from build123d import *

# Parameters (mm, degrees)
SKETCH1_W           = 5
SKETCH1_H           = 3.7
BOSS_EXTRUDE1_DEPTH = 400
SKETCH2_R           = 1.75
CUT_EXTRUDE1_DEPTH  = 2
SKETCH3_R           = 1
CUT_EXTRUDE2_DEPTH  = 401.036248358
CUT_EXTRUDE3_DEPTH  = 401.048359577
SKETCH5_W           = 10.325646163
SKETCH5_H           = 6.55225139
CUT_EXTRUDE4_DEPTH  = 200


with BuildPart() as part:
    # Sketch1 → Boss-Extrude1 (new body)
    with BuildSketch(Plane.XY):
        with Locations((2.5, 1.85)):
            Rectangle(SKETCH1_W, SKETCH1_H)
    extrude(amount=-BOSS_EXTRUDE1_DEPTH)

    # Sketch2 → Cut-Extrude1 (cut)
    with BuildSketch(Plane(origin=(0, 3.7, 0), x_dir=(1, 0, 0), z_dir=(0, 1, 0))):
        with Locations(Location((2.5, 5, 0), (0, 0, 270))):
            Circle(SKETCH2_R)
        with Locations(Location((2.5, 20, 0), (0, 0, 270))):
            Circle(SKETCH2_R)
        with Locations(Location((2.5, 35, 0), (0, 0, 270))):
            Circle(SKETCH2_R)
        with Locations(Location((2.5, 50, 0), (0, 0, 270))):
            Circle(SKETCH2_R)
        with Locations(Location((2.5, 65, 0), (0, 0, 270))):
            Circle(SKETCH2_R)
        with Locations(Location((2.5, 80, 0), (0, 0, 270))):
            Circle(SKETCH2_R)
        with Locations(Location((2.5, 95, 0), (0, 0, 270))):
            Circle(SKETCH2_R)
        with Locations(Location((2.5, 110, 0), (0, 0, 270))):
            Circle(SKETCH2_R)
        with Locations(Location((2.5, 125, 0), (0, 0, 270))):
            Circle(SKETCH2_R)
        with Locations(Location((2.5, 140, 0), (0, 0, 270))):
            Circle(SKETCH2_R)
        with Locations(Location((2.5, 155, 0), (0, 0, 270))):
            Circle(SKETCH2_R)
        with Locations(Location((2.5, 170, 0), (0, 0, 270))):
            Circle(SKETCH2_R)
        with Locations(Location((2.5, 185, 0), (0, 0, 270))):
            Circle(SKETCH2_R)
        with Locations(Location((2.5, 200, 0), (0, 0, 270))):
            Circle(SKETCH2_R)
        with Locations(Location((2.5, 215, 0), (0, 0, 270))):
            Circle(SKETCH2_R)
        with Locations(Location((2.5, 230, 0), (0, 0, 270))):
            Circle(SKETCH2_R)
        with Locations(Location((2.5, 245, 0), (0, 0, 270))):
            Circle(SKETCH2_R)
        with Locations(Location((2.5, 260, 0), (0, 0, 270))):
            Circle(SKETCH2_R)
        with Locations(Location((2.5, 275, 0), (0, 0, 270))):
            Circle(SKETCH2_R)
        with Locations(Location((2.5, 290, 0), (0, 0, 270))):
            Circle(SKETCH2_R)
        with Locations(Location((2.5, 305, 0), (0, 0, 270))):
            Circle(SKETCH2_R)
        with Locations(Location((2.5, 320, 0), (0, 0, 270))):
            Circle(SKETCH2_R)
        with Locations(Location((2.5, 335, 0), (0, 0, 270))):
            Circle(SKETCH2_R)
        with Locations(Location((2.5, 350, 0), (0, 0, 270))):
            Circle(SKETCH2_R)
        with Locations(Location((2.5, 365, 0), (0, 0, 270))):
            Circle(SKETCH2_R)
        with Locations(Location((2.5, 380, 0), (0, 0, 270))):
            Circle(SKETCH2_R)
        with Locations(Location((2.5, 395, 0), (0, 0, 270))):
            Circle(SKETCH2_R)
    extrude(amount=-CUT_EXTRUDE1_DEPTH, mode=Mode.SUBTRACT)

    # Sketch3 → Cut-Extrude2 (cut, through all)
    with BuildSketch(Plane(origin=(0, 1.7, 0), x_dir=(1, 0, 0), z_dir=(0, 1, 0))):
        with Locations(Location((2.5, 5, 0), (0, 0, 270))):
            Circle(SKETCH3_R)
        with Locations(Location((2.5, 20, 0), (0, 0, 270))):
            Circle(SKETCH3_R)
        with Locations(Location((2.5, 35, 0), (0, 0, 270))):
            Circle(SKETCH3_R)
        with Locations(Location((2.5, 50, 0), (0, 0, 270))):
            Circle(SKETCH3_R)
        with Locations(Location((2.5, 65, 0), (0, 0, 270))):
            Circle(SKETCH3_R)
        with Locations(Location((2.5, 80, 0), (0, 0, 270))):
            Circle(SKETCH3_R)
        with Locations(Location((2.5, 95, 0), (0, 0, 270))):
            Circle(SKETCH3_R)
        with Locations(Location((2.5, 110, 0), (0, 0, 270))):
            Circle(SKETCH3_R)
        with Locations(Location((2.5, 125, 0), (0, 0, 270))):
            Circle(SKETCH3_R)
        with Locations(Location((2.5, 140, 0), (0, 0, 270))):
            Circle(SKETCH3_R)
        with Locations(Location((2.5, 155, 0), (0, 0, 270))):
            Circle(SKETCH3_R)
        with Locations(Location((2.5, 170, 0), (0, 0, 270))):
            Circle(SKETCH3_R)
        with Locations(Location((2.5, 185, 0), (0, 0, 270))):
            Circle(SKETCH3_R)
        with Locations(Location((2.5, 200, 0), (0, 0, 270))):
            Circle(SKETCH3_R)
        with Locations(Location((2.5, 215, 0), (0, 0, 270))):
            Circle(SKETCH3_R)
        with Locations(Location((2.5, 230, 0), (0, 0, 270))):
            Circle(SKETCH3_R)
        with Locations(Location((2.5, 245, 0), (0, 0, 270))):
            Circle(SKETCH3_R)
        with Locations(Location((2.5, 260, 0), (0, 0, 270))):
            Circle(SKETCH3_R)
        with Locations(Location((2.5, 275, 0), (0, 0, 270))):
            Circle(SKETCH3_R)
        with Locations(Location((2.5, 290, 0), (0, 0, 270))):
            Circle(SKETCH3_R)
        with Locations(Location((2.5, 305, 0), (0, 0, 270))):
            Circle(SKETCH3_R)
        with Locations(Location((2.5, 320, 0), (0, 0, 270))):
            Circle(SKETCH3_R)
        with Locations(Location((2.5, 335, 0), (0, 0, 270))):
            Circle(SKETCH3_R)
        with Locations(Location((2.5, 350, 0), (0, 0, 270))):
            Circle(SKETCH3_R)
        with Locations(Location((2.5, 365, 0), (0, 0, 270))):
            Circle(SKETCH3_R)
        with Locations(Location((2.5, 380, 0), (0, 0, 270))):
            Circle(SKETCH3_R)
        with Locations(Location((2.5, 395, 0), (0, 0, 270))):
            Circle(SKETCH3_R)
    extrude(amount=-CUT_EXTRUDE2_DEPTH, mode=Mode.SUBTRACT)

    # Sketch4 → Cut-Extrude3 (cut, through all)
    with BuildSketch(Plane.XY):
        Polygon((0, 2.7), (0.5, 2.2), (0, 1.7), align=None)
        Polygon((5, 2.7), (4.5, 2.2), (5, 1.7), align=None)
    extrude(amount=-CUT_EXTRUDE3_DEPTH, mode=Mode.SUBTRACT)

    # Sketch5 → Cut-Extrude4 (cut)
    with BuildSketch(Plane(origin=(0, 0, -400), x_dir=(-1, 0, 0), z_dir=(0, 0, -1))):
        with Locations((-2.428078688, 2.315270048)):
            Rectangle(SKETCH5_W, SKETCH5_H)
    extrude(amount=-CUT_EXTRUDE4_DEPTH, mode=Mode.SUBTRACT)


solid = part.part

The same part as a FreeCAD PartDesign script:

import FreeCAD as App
import Part
import Sketcher

V = App.Vector
Q = App.Units.Quantity


def add_polygon(sketch, points):
    """Adds a closed chain of lines whose ends are joined by coincident constraints."""
    first, n = sketch.GeometryCount, len(points)
    for a, b in zip(points, points[1:] + points[:1]):
        sketch.addGeometry(Part.LineSegment(App.Vector(*a, 0), App.Vector(*b, 0)), False)
    for i in range(n):
        sketch.addConstraint(Sketcher.Constraint("Coincident", first + i, 2, first + (i + 1) % n, 1))

doc = App.newDocument("Part")
body = doc.addObject("PartDesign::Body", "Body")

sketch1 = body.newObject("Sketcher::SketchObject", "Sketch")
sketch1.AttachmentSupport = (doc.getObject("XY_Plane"), [""])
sketch1.MapMode = "FlatFace"
add_polygon(sketch1, [(0, 3.7), (0, 0), (5, 0), (5, 3.7)])
sketch1.addConstraint([
    Sketcher.Constraint("Vertical", 0),
    Sketcher.Constraint("Horizontal", 1),
    Sketcher.Constraint("Vertical", 2),
    Sketcher.Constraint("Horizontal", 3),
    Sketcher.Constraint("Coincident", 0, 2, -1, 1),
    Sketcher.Constraint("DistanceX", 1, 1, 1, 2, Q("5 mm")),
    Sketcher.Constraint("DistanceY", 0, 2, 0, 1, Q("3.7 mm")),
])
pad1 = body.newObject("PartDesign::Pad", "Pad")
pad1.Profile = sketch1
pad1.Length = 400
pad1.Reversed = True

sketch2 = body.newObject("Sketcher::SketchObject", "Sketch001")
sketch2.AttachmentSupport = (doc.getObject("XZ_Plane"), [""])
sketch2.MapMode = "FlatFace"
sketch2.AttachmentOffset = App.Placement(V(0, 0, -3.7), App.Rotation())
sketch2.addGeometry([
    Part.Circle(V(2.5, -5, 0), V(0, 0, 1), 1.8),
    Part.Circle(V(2.5, -20, 0), V(0, 0, 1), 1.8),
    Part.Circle(V(2.5, -35, 0), V(0, 0, 1), 1.8),
    Part.Circle(V(2.5, -50, 0), V(0, 0, 1), 1.8),
    Part.Circle(V(2.5, -65, 0), V(0, 0, 1), 1.8),
    Part.Circle(V(2.5, -80, 0), V(0, 0, 1), 1.8),
    Part.Circle(V(2.5, -95, 0), V(0, 0, 1), 1.8),
    Part.Circle(V(2.5, -110, 0), V(0, 0, 1), 1.8),
    Part.Circle(V(2.5, -125, 0), V(0, 0, 1), 1.8),
    Part.Circle(V(2.5, -140, 0), V(0, 0, 1), 1.8),
    Part.Circle(V(2.5, -155, 0), V(0, 0, 1), 1.8),
    Part.Circle(V(2.5, -170, 0), V(0, 0, 1), 1.8),
    Part.Circle(V(2.5, -185, 0), V(0, 0, 1), 1.8),
    Part.Circle(V(2.5, -200, 0), V(0, 0, 1), 1.8),
    Part.Circle(V(2.5, -215, 0), V(0, 0, 1), 1.8),
    Part.Circle(V(2.5, -230, 0), V(0, 0, 1), 1.8),
    Part.Circle(V(2.5, -245, 0), V(0, 0, 1), 1.8),
    Part.Circle(V(2.5, -260, 0), V(0, 0, 1), 1.8),
    Part.Circle(V(2.5, -275, 0), V(0, 0, 1), 1.8),
    Part.Circle(V(2.5, -290, 0), V(0, 0, 1), 1.8),
    Part.Circle(V(2.5, -305, 0), V(0, 0, 1), 1.8),
    Part.Circle(V(2.5, -320, 0), V(0, 0, 1), 1.8),
    Part.Circle(V(2.5, -335, 0), V(0, 0, 1), 1.8),
    Part.Circle(V(2.5, -350, 0), V(0, 0, 1), 1.8),
    Part.Circle(V(2.5, -365, 0), V(0, 0, 1), 1.8),
    Part.Circle(V(2.5, -380, 0), V(0, 0, 1), 1.8),
    Part.Circle(V(2.5, -395, 0), V(0, 0, 1), 1.8),
], False)
sketch2.addConstraint([
    Sketcher.Constraint("Equal", 0, 1),
    Sketcher.Constraint("Equal", 1, 2),
    Sketcher.Constraint("Equal", 2, 3),
    Sketcher.Constraint("Equal", 3, 4),
    Sketcher.Constraint("Equal", 4, 5),
    Sketcher.Constraint("Equal", 5, 6),
    Sketcher.Constraint("Equal", 6, 7),
    Sketcher.Constraint("Equal", 7, 8),
    Sketcher.Constraint("Equal", 8, 9),
    Sketcher.Constraint("Equal", 9, 10),
    Sketcher.Constraint("Equal", 10, 11),
    Sketcher.Constraint("Equal", 11, 12),
    Sketcher.Constraint("Equal", 12, 13),
    Sketcher.Constraint("Equal", 13, 14),
    Sketcher.Constraint("Equal", 14, 15),
    Sketcher.Constraint("Equal", 15, 16),
    Sketcher.Constraint("Equal", 16, 17),
    Sketcher.Constraint("Equal", 17, 18),
    Sketcher.Constraint("Equal", 18, 19),
    Sketcher.Constraint("Equal", 19, 20),
    Sketcher.Constraint("Equal", 20, 21),
    Sketcher.Constraint("Equal", 21, 22),
    Sketcher.Constraint("Equal", 22, 23),
    Sketcher.Constraint("Equal", 23, 24),
    Sketcher.Constraint("Equal", 24, 25),
    Sketcher.Constraint("Equal", 25, 26),
    Sketcher.Constraint("Vertical", 0, 3, 1, 3),
    Sketcher.Constraint("Vertical", 1, 3, 2, 3),
    Sketcher.Constraint("Vertical", 2, 3, 3, 3),
    Sketcher.Constraint("Vertical", 3, 3, 4, 3),
    Sketcher.Constraint("Vertical", 4, 3, 5, 3),
    Sketcher.Constraint("Vertical", 5, 3, 6, 3),
    Sketcher.Constraint("Vertical", 6, 3, 7, 3),
    Sketcher.Constraint("Vertical", 7, 3, 8, 3),
    Sketcher.Constraint("Vertical", 8, 3, 9, 3),
    Sketcher.Constraint("Vertical", 9, 3, 10, 3),
    Sketcher.Constraint("Vertical", 10, 3, 11, 3),
    Sketcher.Constraint("Vertical", 11, 3, 12, 3),
    Sketcher.Constraint("Vertical", 12, 3, 13, 3),
    Sketcher.Constraint("Vertical", 13, 3, 14, 3),
    Sketcher.Constraint("Vertical", 14, 3, 15, 3),
    Sketcher.Constraint("Vertical", 15, 3, 16, 3),
    Sketcher.Constraint("Vertical", 16, 3, 17, 3),
    Sketcher.Constraint("Vertical", 17, 3, 18, 3),
    Sketcher.Constraint("Vertical", 18, 3, 19, 3),
    Sketcher.Constraint("Vertical", 19, 3, 20, 3),
    Sketcher.Constraint("Vertical", 20, 3, 21, 3),
    Sketcher.Constraint("Vertical", 21, 3, 22, 3),
    Sketcher.Constraint("Vertical", 22, 3, 23, 3),
    Sketcher.Constraint("Vertical", 23, 3, 24, 3),
    Sketcher.Constraint("Vertical", 24, 3, 25, 3),
    Sketcher.Constraint("Vertical", 25, 3, 26, 3),
    Sketcher.Constraint("Diameter", 0, Q("3.5 mm")),
    Sketcher.Constraint("DistanceY", 0, 3, -1, 1, Q("5 mm")),
    Sketcher.Constraint("DistanceY", 1, 3, -1, 1, Q("20 mm")),
    Sketcher.Constraint("DistanceY", 2, 3, -1, 1, Q("35 mm")),
    Sketcher.Constraint("DistanceY", 3, 3, -1, 1, Q("50 mm")),
    Sketcher.Constraint("DistanceY", 4, 3, -1, 1, Q("65 mm")),
    Sketcher.Constraint("DistanceY", 5, 3, -1, 1, Q("80 mm")),
    Sketcher.Constraint("DistanceY", 6, 3, -1, 1, Q("95 mm")),
    Sketcher.Constraint("DistanceY", 7, 3, -1, 1, Q("110 mm")),
    Sketcher.Constraint("DistanceY", 8, 3, -1, 1, Q("125 mm")),
    Sketcher.Constraint("DistanceY", 9, 3, -1, 1, Q("140 mm")),
    Sketcher.Constraint("DistanceY", 10, 3, -1, 1, Q("155 mm")),
    Sketcher.Constraint("DistanceY", 11, 3, -1, 1, Q("170 mm")),
    Sketcher.Constraint("DistanceY", 12, 3, -1, 1, Q("185 mm")),
    Sketcher.Constraint("DistanceY", 13, 3, -1, 1, Q("200 mm")),
    Sketcher.Constraint("DistanceY", 14, 3, -1, 1, Q("215 mm")),
    Sketcher.Constraint("DistanceY", 15, 3, -1, 1, Q("230 mm")),
    Sketcher.Constraint("DistanceY", 16, 3, -1, 1, Q("245 mm")),
    Sketcher.Constraint("DistanceY", 17, 3, -1, 1, Q("260 mm")),
    Sketcher.Constraint("DistanceY", 18, 3, -1, 1, Q("275 mm")),
    Sketcher.Constraint("DistanceY", 19, 3, -1, 1, Q("290 mm")),
    Sketcher.Constraint("DistanceY", 20, 3, -1, 1, Q("305 mm")),
    Sketcher.Constraint("DistanceY", 21, 3, -1, 1, Q("320 mm")),
    Sketcher.Constraint("DistanceY", 22, 3, -1, 1, Q("335 mm")),
    Sketcher.Constraint("DistanceY", 23, 3, -1, 1, Q("350 mm")),
    Sketcher.Constraint("DistanceY", 24, 3, -1, 1, Q("365 mm")),
    Sketcher.Constraint("DistanceY", 25, 3, -1, 1, Q("380 mm")),
    Sketcher.Constraint("DistanceY", 26, 3, -1, 1, Q("395 mm")),
    Sketcher.Constraint("DistanceX", -1, 1, 0, 3, Q("2.5 mm")),
])
pocket1 = body.newObject("PartDesign::Pocket", "Pocket")
pocket1.Profile = sketch2
pocket1.Length = 2
pocket1.Reversed = True

sketch3 = body.newObject("Sketcher::SketchObject", "Sketch002")
sketch3.AttachmentSupport = (doc.getObject("XZ_Plane"), [""])
sketch3.MapMode = "FlatFace"
sketch3.AttachmentOffset = App.Placement(V(0, 0, -1.7), App.Rotation())
sketch3.addGeometry([
    Part.Circle(V(2.5, -5, 0), V(0, 0, 1), 1),
    Part.Circle(V(2.5, -20, 0), V(0, 0, 1), 1),
    Part.Circle(V(2.5, -35, 0), V(0, 0, 1), 1),
    Part.Circle(V(2.5, -50, 0), V(0, 0, 1), 1),
    Part.Circle(V(2.5, -65, 0), V(0, 0, 1), 1),
    Part.Circle(V(2.5, -80, 0), V(0, 0, 1), 1),
    Part.Circle(V(2.5, -95, 0), V(0, 0, 1), 1),
    Part.Circle(V(2.5, -110, 0), V(0, 0, 1), 1),
    Part.Circle(V(2.5, -125, 0), V(0, 0, 1), 1),
    Part.Circle(V(2.5, -140, 0), V(0, 0, 1), 1),
    Part.Circle(V(2.5, -155, 0), V(0, 0, 1), 1),
    Part.Circle(V(2.5, -170, 0), V(0, 0, 1), 1),
    Part.Circle(V(2.5, -185, 0), V(0, 0, 1), 1),
    Part.Circle(V(2.5, -200, 0), V(0, 0, 1), 1),
    Part.Circle(V(2.5, -215, 0), V(0, 0, 1), 1),
    Part.Circle(V(2.5, -230, 0), V(0, 0, 1), 1),
    Part.Circle(V(2.5, -245, 0), V(0, 0, 1), 1),
    Part.Circle(V(2.5, -260, 0), V(0, 0, 1), 1),
    Part.Circle(V(2.5, -275, 0), V(0, 0, 1), 1),
    Part.Circle(V(2.5, -290, 0), V(0, 0, 1), 1),
    Part.Circle(V(2.5, -305, 0), V(0, 0, 1), 1),
    Part.Circle(V(2.5, -320, 0), V(0, 0, 1), 1),
    Part.Circle(V(2.5, -335, 0), V(0, 0, 1), 1),
    Part.Circle(V(2.5, -350, 0), V(0, 0, 1), 1),
    Part.Circle(V(2.5, -365, 0), V(0, 0, 1), 1),
    Part.Circle(V(2.5, -380, 0), V(0, 0, 1), 1),
    Part.Circle(V(2.5, -395, 0), V(0, 0, 1), 1),
], False)
sketch3.addConstraint([
    Sketcher.Constraint("Equal", 0, 1),
    Sketcher.Constraint("Equal", 1, 2),
    Sketcher.Constraint("Equal", 2, 3),
    Sketcher.Constraint("Equal", 3, 4),
    Sketcher.Constraint("Equal", 4, 5),
    Sketcher.Constraint("Equal", 5, 6),
    Sketcher.Constraint("Equal", 6, 7),
    Sketcher.Constraint("Equal", 7, 8),
    Sketcher.Constraint("Equal", 8, 9),
    Sketcher.Constraint("Equal", 9, 10),
    Sketcher.Constraint("Equal", 10, 11),
    Sketcher.Constraint("Equal", 11, 12),
    Sketcher.Constraint("Equal", 12, 13),
    Sketcher.Constraint("Equal", 13, 14),
    Sketcher.Constraint("Equal", 14, 15),
    Sketcher.Constraint("Equal", 15, 16),
    Sketcher.Constraint("Equal", 16, 17),
    Sketcher.Constraint("Equal", 17, 18),
    Sketcher.Constraint("Equal", 18, 19),
    Sketcher.Constraint("Equal", 19, 20),
    Sketcher.Constraint("Equal", 20, 21),
    Sketcher.Constraint("Equal", 21, 22),
    Sketcher.Constraint("Equal", 22, 23),
    Sketcher.Constraint("Equal", 23, 24),
    Sketcher.Constraint("Equal", 24, 25),
    Sketcher.Constraint("Equal", 25, 26),
    Sketcher.Constraint("Vertical", 0, 3, 1, 3),
    Sketcher.Constraint("Vertical", 1, 3, 2, 3),
    Sketcher.Constraint("Vertical", 2, 3, 3, 3),
    Sketcher.Constraint("Vertical", 3, 3, 4, 3),
    Sketcher.Constraint("Vertical", 4, 3, 5, 3),
    Sketcher.Constraint("Vertical", 5, 3, 6, 3),
    Sketcher.Constraint("Vertical", 6, 3, 7, 3),
    Sketcher.Constraint("Vertical", 7, 3, 8, 3),
    Sketcher.Constraint("Vertical", 8, 3, 9, 3),
    Sketcher.Constraint("Vertical", 9, 3, 10, 3),
    Sketcher.Constraint("Vertical", 10, 3, 11, 3),
    Sketcher.Constraint("Vertical", 11, 3, 12, 3),
    Sketcher.Constraint("Vertical", 12, 3, 13, 3),
    Sketcher.Constraint("Vertical", 13, 3, 14, 3),
    Sketcher.Constraint("Vertical", 14, 3, 15, 3),
    Sketcher.Constraint("Vertical", 15, 3, 16, 3),
    Sketcher.Constraint("Vertical", 16, 3, 17, 3),
    Sketcher.Constraint("Vertical", 17, 3, 18, 3),
    Sketcher.Constraint("Vertical", 18, 3, 19, 3),
    Sketcher.Constraint("Vertical", 19, 3, 20, 3),
    Sketcher.Constraint("Vertical", 20, 3, 21, 3),
    Sketcher.Constraint("Vertical", 21, 3, 22, 3),
    Sketcher.Constraint("Vertical", 22, 3, 23, 3),
    Sketcher.Constraint("Vertical", 23, 3, 24, 3),
    Sketcher.Constraint("Vertical", 24, 3, 25, 3),
    Sketcher.Constraint("Vertical", 25, 3, 26, 3),
    Sketcher.Constraint("Diameter", 0, Q("2 mm")),
    Sketcher.Constraint("DistanceY", 0, 3, -1, 1, Q("5 mm")),
    Sketcher.Constraint("DistanceY", 1, 3, -1, 1, Q("20 mm")),
    Sketcher.Constraint("DistanceY", 2, 3, -1, 1, Q("35 mm")),
    Sketcher.Constraint("DistanceY", 3, 3, -1, 1, Q("50 mm")),
    Sketcher.Constraint("DistanceY", 4, 3, -1, 1, Q("65 mm")),
    Sketcher.Constraint("DistanceY", 5, 3, -1, 1, Q("80 mm")),
    Sketcher.Constraint("DistanceY", 6, 3, -1, 1, Q("95 mm")),
    Sketcher.Constraint("DistanceY", 7, 3, -1, 1, Q("110 mm")),
    Sketcher.Constraint("DistanceY", 8, 3, -1, 1, Q("125 mm")),
    Sketcher.Constraint("DistanceY", 9, 3, -1, 1, Q("140 mm")),
    Sketcher.Constraint("DistanceY", 10, 3, -1, 1, Q("155 mm")),
    Sketcher.Constraint("DistanceY", 11, 3, -1, 1, Q("170 mm")),
    Sketcher.Constraint("DistanceY", 12, 3, -1, 1, Q("185 mm")),
    Sketcher.Constraint("DistanceY", 13, 3, -1, 1, Q("200 mm")),
    Sketcher.Constraint("DistanceY", 14, 3, -1, 1, Q("215 mm")),
    Sketcher.Constraint("DistanceY", 15, 3, -1, 1, Q("230 mm")),
    Sketcher.Constraint("DistanceY", 16, 3, -1, 1, Q("245 mm")),
    Sketcher.Constraint("DistanceY", 17, 3, -1, 1, Q("260 mm")),
    Sketcher.Constraint("DistanceY", 18, 3, -1, 1, Q("275 mm")),
    Sketcher.Constraint("DistanceY", 19, 3, -1, 1, Q("290 mm")),
    Sketcher.Constraint("DistanceY", 20, 3, -1, 1, Q("305 mm")),
    Sketcher.Constraint("DistanceY", 21, 3, -1, 1, Q("320 mm")),
    Sketcher.Constraint("DistanceY", 22, 3, -1, 1, Q("335 mm")),
    Sketcher.Constraint("DistanceY", 23, 3, -1, 1, Q("350 mm")),
    Sketcher.Constraint("DistanceY", 24, 3, -1, 1, Q("365 mm")),
    Sketcher.Constraint("DistanceY", 25, 3, -1, 1, Q("380 mm")),
    Sketcher.Constraint("DistanceY", 26, 3, -1, 1, Q("395 mm")),
    Sketcher.Constraint("DistanceX", -1, 1, 0, 3, Q("2.5 mm")),
])
pocket2 = body.newObject("PartDesign::Pocket", "Pocket001")
pocket2.Profile = sketch3
pocket2.Type = "ThroughAll"
pocket2.Reversed = True

sketch4 = body.newObject("Sketcher::SketchObject", "Sketch003")
sketch4.AttachmentSupport = (doc.getObject("XY_Plane"), [""])
sketch4.MapMode = "FlatFace"
add_polygon(sketch4, [(0.5, 2.2), (0, 2.7), (0, 1.7)])
add_polygon(sketch4, [(5, 2.7), (4.5, 2.2), (5, 1.7)])
sketch4.addConstraint([
    Sketcher.Constraint("Vertical", 1),
    Sketcher.Constraint("Vertical", 5),
    Sketcher.Constraint("PointOnObject", 0, 2, -2),
    Sketcher.Constraint("Perpendicular", 0, 2),
    Sketcher.Constraint("Parallel", 2, 3),
    Sketcher.Constraint("Perpendicular", 3, 4),
    Sketcher.Constraint("Horizontal", 2, 2, 3, 2),
    Sketcher.Constraint("Horizontal", 1, 2, 4, 2),
    Sketcher.Constraint("Horizontal", 0, 2, 5, 2),
    Sketcher.Constraint("DistanceY", 1, 2, 1, 1, Q("1 mm")),
    Sketcher.Constraint("DistanceX", -1, 1, 4, 2, Q("5 mm")),
    Sketcher.Constraint("DistanceY", -1, 1, 0, 2, Q("2.7 mm")),
])
pocket3 = body.newObject("PartDesign::Pocket", "Pocket002")
pocket3.Profile = sketch4
pocket3.Type = "ThroughAll"

sketch5 = body.newObject("Sketcher::SketchObject", "Sketch004")
sketch5.AttachmentSupport = (doc.getObject("XY_Plane"), [""])
sketch5.MapMode = "FlatFace"
sketch5.AttachmentOffset = App.Placement(V(0, 0, -400), App.Rotation())
add_polygon(sketch5, [(8, 6), (8, -1), (-3, -1), (-3, 6)])
sketch5.addConstraint([
    Sketcher.Constraint("Vertical", 0),
    Sketcher.Constraint("Horizontal", 1),
    Sketcher.Constraint("Vertical", 2),
    Sketcher.Constraint("Horizontal", 3),
    Sketcher.Constraint("DistanceY", 0, 2, 0, 1, Q("6.552251 mm")),
    Sketcher.Constraint("DistanceX", -1, 1, 0, 2, Q("7.590902 mm")),
    Sketcher.Constraint("DistanceX", 1, 2, 1, 1, Q("10.325646 mm")),
    Sketcher.Constraint("DistanceY", 0, 2, -1, 1, Q("0.960856 mm")),
])
pocket4 = body.newObject("PartDesign::Pocket", "Pocket003")
pocket4.Profile = sketch5
pocket4.Length = 200
pocket4.Reversed = True

doc.recompute()
